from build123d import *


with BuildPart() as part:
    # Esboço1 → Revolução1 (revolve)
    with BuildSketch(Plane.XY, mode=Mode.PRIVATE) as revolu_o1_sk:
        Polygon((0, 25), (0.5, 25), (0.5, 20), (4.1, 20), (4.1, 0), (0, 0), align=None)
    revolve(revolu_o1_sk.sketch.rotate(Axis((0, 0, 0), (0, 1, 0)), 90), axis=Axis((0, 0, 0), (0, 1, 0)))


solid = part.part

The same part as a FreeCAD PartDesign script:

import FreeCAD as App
import Part
import Sketcher
from FreeCAD import Vector
Q = App.Units.Quantity


def add_polygon(sketch, points):
    """Adds a closed chain of lines whose ends are joined by coincident constraints."""
    first, n = sketch.GeometryCount, len(points)
    for a, b in zip(points, points[1:] + points[:1]):
        sketch.addGeometry(Part.LineSegment(App.Vector(*a, 0), App.Vector(*b, 0)), False)
    for i in range(n):
        sketch.addConstraint(Sketcher.Constraint("Coincident", first + i, 2, first + (i + 1) % n, 1))

doc = App.newDocument("Part")
body = doc.addObject("PartDesign::Body", "Body")

# Sketch on XY plane
sketch1 = body.newObject("Sketcher::SketchObject", "Sketch")
sketch1.AttachmentSupport = (doc.getObject("XY_Plane"), [""])
sketch1.MapMode = "FlatFace"
add_polygon(sketch1, [(0.5, 25), (0, 25), (0, 0), (4.1, 0), (4.1, 20), (0.5, 20)])  # lines 0-5
sketch1.addConstraint([
    Sketcher.Constraint("Horizontal", 0),
    Sketcher.Constraint("Vertical", 1),
    Sketcher.Constraint("Horizontal", 2),
    Sketcher.Constraint("Vertical", 3),
    Sketcher.Constraint("Horizontal", 4),
    Sketcher.Constraint("Vertical", 5),
    Sketcher.Constraint("Coincident", 1, 2, -1, 1),
    Sketcher.Constraint("DistanceY", 1, 2, 1, 1, Q("25 mm")),
    Sketcher.Constraint("DistanceY", 3, 1, 3, 2, Q("20 mm")),
    Sketcher.Constraint("DistanceX", 0, 2, 0, 1, Q("0.5 mm")),
    Sketcher.Constraint("DistanceX", 2, 1, 2, 2, Q("4.1 mm")),
])
revolution = body.newObject("PartDesign::Revolution", "Revolution")
revolution.Profile = sketch1
revolution.ReferenceAxis = (sketch1, ["V_Axis"])
revolution.Angle = 360

doc.recompute()
